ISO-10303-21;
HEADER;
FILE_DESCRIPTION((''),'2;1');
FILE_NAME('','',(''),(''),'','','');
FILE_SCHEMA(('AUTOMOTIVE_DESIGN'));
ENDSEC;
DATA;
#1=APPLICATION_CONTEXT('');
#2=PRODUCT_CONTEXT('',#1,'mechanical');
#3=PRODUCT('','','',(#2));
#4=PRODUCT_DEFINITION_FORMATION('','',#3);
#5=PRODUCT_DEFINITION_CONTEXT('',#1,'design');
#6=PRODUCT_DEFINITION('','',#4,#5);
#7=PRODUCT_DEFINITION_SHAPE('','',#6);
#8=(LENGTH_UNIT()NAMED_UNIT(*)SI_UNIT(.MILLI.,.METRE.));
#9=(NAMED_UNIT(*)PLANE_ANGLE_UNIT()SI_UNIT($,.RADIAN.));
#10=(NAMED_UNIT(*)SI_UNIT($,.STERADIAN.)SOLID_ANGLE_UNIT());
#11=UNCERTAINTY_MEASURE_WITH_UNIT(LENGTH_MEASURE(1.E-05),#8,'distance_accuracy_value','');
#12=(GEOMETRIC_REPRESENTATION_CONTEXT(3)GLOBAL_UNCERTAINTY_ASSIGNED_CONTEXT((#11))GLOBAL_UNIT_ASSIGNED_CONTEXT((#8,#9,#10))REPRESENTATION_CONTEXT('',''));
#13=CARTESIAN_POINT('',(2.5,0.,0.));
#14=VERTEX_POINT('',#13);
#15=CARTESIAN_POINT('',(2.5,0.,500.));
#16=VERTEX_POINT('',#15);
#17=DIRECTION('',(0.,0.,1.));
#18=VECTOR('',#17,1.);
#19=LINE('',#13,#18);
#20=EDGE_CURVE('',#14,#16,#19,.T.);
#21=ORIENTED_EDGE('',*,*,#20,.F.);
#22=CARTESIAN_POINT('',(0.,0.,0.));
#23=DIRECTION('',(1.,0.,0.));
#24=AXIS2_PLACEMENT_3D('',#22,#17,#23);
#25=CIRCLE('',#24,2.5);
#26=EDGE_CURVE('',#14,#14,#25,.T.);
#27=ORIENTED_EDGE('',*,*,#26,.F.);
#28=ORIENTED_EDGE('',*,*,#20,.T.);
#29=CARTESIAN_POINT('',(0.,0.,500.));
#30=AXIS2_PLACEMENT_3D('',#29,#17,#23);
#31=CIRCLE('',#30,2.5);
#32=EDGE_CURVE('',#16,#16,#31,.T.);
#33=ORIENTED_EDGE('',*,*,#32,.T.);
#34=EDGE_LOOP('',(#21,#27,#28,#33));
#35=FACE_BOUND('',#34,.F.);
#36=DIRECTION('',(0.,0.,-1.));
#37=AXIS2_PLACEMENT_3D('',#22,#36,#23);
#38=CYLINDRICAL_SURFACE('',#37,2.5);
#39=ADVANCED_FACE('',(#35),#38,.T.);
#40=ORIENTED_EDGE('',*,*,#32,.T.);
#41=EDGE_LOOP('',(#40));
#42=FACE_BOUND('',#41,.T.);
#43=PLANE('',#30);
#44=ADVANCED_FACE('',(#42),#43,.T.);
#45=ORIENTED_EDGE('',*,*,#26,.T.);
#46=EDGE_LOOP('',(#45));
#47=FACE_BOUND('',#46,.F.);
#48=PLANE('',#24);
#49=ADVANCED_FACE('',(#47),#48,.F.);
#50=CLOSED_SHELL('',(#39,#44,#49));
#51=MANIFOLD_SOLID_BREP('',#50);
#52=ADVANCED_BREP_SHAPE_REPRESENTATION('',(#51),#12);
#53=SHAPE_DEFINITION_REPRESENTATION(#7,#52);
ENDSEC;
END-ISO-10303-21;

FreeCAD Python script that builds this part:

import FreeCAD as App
import Part
import Sketcher

V = App.Vector

doc = App.newDocument("Part")
body = doc.addObject("PartDesign::Body", "Body")

# Sketch on XY plane
sketch1 = doc.addObject("Sketcher::SketchObject", "Sketch")
body.addObject(sketch1)
sketch1.AttachmentSupport = (doc.XY_Plane, [""])
sketch1.MapMode = "FlatFace"
sketch1.addGeometry(Part.Circle(V(0, 0, 0), V(0, 0, 1), 2.5), False)
sketch1.addConstraint([
    Sketcher.Constraint("Coincident", 0, 3, -1, 1),
    Sketcher.Constraint("Diameter", 0, 5.0),
])
pad1 = doc.addObject("PartDesign::Pad", "Pad")
body.addObject(pad1)
pad1.Profile = sketch1
pad1.Length = 500

doc.recompute()
